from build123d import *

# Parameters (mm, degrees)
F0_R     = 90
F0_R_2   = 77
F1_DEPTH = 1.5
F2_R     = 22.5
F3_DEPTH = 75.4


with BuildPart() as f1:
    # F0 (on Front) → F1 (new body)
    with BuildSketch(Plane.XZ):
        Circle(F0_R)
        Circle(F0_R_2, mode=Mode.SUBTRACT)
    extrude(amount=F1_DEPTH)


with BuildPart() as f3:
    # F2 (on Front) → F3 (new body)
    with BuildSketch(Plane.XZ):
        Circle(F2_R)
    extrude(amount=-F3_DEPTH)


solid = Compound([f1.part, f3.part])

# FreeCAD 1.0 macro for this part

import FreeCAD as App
import Part
import Sketcher
Q = App.Units.Quantity

doc = App.newDocument("Part")
params = doc.addObject("Spreadsheet::Sheet", "Params")
for row, (alias, value) in enumerate([
    ("sketch1_diameter", "180 mm"),
    ("sketch1_diameter2", "154 mm"),
    ("pad1_length", "1.5 mm"),
    ("sketch2_diameter", "45 mm"),
    ("pad2_length", "75.4 mm"),
], start=1):
    params.set(f"A{row}", alias)
    params.set(f"B{row}", "=" + value)
    params.setAlias(f"B{row}", alias)

body = doc.addObject("PartDesign::Body", "Body")

# Sketch on XZ plane
sketch1 = body.newObject("Sketcher::SketchObject", "Sketch")
sketch1.AttachmentSupport = (doc.getObject("XZ_Plane"), [""])
sketch1.MapMode = "FlatFace"
sketch1.addGeometry(Part.Circle(App.Vector(0, 0, 0), App.Vector(0, 0, 1), 90), False)
sketch1.addGeometry(Part.Circle(App.Vector(0, 0, 0), App.Vector(0, 0, 1), 77), False)
sketch1.addConstraint(Sketcher.Constraint("Coincident", 0, 3, -1, 1))
sketch1.addConstraint(Sketcher.Constraint("Coincident", 1, 3, -1, 1))
sketch1.addConstraint(Sketcher.Constraint("Diameter", 0, Q("180 mm")))
sketch1.addConstraint(Sketcher.Constraint("Diameter", 1, Q("154 mm")))
sketch1.setExpression("Constraints[2]", "Params.sketch1_diameter")
sketch1.setExpression("Constraints[3]", "Params.sketch1_diameter2")
pad1 = body.newObject("PartDesign::Pad", "Pad")
pad1.Profile = sketch1
pad1.setExpression("Length", "Params.pad1_length")
body2 = doc.addObject("PartDesign::Body", "Body001")

# Sketch on XZ plane
sketch2 = body2.newObject("Sketcher::SketchObject", "Sketch001")
sketch2.AttachmentSupport = (doc.getObject("XZ_Plane001"), [""])
sketch2.MapMode = "FlatFace"
sketch2.addGeometry(Part.Circle(App.Vector(0, 0, 0), App.Vector(0, 0, 1), 22), False)
sketch2.addConstraint(Sketcher.Constraint("Coincident", 0, 3, -1, 1))
sketch2.addConstraint(Sketcher.Constraint("Diameter", 0, Q("45 mm")))
sketch2.setExpression("Constraints[1]", "Params.sketch2_diameter")
pad2 = body2.newObject("PartDesign::Pad", "Pad001")
pad2.Profile = sketch2
pad2.setExpression("Length", "Params.pad2_length")
pad2.Reversed = True

doc.recompute()
